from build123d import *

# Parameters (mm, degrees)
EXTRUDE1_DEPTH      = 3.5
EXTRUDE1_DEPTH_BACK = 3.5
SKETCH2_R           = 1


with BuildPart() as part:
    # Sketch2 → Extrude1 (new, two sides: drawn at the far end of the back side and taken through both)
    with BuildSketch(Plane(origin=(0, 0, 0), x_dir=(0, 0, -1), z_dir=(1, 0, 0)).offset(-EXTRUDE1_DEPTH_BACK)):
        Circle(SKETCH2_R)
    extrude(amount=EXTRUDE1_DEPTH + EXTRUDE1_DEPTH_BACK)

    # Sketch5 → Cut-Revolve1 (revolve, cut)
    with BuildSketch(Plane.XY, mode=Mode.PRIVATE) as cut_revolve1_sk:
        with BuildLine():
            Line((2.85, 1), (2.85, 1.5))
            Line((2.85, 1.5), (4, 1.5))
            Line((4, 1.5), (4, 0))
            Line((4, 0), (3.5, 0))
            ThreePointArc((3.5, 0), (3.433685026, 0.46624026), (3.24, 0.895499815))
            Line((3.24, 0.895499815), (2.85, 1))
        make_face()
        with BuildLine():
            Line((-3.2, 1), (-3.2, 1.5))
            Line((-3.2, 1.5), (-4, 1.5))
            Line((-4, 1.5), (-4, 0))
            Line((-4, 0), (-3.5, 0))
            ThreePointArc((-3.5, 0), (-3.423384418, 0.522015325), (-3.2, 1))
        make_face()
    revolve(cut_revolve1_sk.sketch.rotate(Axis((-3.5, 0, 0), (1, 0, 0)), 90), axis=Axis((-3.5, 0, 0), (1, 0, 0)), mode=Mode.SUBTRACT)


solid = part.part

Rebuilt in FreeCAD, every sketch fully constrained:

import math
import FreeCAD as App
import Part
import Sketcher
from FreeCAD import Vector
Q = App.Units.Quantity

doc = App.newDocument("Part")
body = doc.addObject("PartDesign::Body", "Body")

sketch1 = body.newObject("Sketcher::SketchObject", "Sketch")
sketch1.AttachmentSupport = (doc.getObject("YZ_Plane"), [""])
sketch1.MapMode = "FlatFace"
sketch1.addGeometry(Part.Circle(Vector(0, 0, 0), Vector(0, 0, 1), 1), False)
sketch1.addConstraint([
    Sketcher.Constraint("Coincident", 0, 3, -1, 1),
    Sketcher.Constraint("Diameter", 0, 2.0),
])
pad1 = body.newObject("PartDesign::Pad", "Pad")
pad1.Profile = sketch1
pad1.Type = "TwoLengths"
pad1.Length = 3.5
pad1.Length2 = 3.5

sketch2 = body.newObject("Sketcher::SketchObject", "Sketch001")
sketch2.AttachmentSupport = (doc.getObject("XY_Plane"), [""])
sketch2.MapMode = "FlatFace"
sketch2.addGeometry([
    Part.LineSegment(Vector(2.85, 1.5, 0), Vector(2.85, 1, 0)),
    Part.LineSegment(Vector(2.85, 1, 0), Vector(3.24, 0.8955, 0)),
    Part.ArcOfCircle(Part.Circle(Vector(1.827846, 0, 0), Vector(0, 0, 1), 1.672154), math.radians(0), math.radians(32.380322)),
    Part.LineSegment(Vector(3.5, 0, 0), Vector(4, 0, 0)),
    Part.LineSegment(Vector(4, 0, 0), Vector(4, 1.5, 0)),
    Part.LineSegment(Vector(4, 1.5, 0), Vector(2.85, 1.5, 0)),
    Part.LineSegment(Vector(-3.2, 1, 0), Vector(-3.2, 1.5, 0)),
    Part.LineSegment(Vector(-3.2, 1.5, 0), Vector(-4, 1.5, 0)),
    Part.LineSegment(Vector(-4, 1.5, 0), Vector(-4, 0, 0)),
    Part.LineSegment(Vector(-4, 0, 0), Vector(-3.5, 0, 0)),
    Part.ArcOfCircle(Part.Circle(Vector(-1.683333, 0, 0), Vector(0, 0, 1), 1.816667), math.radians(146.601512), math.radians(180)),
], False)
sketch2.addConstraint([
    Sketcher.Constraint("Coincident", 0, 2, 1, 1),
    Sketcher.Constraint("Coincident", 1, 2, 2, 2),
    Sketcher.Constraint("Coincident", 2, 1, 3, 1),
    Sketcher.Constraint("Coincident", 3, 2, 4, 1),
    Sketcher.Constraint("Coincident", 4, 2, 5, 1),
    Sketcher.Constraint("Coincident", 5, 2, 0, 1),
    Sketcher.Constraint("Coincident", 6, 2, 7, 1),
    Sketcher.Constraint("Coincident", 7, 2, 8, 1),
    Sketcher.Constraint("Coincident", 8, 2, 9, 1),
    Sketcher.Constraint("Coincident", 9, 2, 10, 2),
    Sketcher.Constraint("Coincident", 10, 1, 6, 1),
    Sketcher.Constraint("Vertical", 0),
    Sketcher.Constraint("Horizontal", 3),
    Sketcher.Constraint("Vertical", 4),
    Sketcher.Constraint("Horizontal", 5),
    Sketcher.Constraint("Vertical", 6),
    Sketcher.Constraint("Horizontal", 7),
    Sketcher.Constraint("Vertical", 8),
    Sketcher.Constraint("Horizontal", 9),
    Sketcher.Constraint("Symmetric", 3, 2, 8, 2, -1, 1),
    Sketcher.Constraint("Symmetric", 2, 1, 9, 2, -2),
    Sketcher.Constraint("PointOnObject", 2, 3, -1),
    Sketcher.Constraint("PointOnObject", 10, 3, -1),
    Sketcher.Constraint("Horizontal", 5, 2, 6, 2),
    Sketcher.Constraint("Horizontal", 0, 2, 10, 1),
    Sketcher.Constraint("Equal", 9, 0),
    Sketcher.Constraint("Angle", 1, Q("-15 deg")),
    Sketcher.Constraint("DistanceX", 3, 1, 3, 2, 0.5),
    Sketcher.Constraint("DistanceX", 7, 2, 7, 1, 0.8),
    Sketcher.Constraint("DistanceY", 4, 1, 4, 2, 1.5),
    Sketcher.Constraint("DistanceX", -1, 1, 3, 2, 4.0),
    Sketcher.Constraint("DistanceX", 5, 2, 5, 1, 1.15),
    Sketcher.Constraint("DistanceX", -1, 1, 1, 2, 3.24),
])
groove = body.newObject("PartDesign::Groove", "Groove")
groove.Profile = sketch2
groove.ReferenceAxis = (sketch2, ["H_Axis"])
groove.Angle = 360

doc.recompute()
